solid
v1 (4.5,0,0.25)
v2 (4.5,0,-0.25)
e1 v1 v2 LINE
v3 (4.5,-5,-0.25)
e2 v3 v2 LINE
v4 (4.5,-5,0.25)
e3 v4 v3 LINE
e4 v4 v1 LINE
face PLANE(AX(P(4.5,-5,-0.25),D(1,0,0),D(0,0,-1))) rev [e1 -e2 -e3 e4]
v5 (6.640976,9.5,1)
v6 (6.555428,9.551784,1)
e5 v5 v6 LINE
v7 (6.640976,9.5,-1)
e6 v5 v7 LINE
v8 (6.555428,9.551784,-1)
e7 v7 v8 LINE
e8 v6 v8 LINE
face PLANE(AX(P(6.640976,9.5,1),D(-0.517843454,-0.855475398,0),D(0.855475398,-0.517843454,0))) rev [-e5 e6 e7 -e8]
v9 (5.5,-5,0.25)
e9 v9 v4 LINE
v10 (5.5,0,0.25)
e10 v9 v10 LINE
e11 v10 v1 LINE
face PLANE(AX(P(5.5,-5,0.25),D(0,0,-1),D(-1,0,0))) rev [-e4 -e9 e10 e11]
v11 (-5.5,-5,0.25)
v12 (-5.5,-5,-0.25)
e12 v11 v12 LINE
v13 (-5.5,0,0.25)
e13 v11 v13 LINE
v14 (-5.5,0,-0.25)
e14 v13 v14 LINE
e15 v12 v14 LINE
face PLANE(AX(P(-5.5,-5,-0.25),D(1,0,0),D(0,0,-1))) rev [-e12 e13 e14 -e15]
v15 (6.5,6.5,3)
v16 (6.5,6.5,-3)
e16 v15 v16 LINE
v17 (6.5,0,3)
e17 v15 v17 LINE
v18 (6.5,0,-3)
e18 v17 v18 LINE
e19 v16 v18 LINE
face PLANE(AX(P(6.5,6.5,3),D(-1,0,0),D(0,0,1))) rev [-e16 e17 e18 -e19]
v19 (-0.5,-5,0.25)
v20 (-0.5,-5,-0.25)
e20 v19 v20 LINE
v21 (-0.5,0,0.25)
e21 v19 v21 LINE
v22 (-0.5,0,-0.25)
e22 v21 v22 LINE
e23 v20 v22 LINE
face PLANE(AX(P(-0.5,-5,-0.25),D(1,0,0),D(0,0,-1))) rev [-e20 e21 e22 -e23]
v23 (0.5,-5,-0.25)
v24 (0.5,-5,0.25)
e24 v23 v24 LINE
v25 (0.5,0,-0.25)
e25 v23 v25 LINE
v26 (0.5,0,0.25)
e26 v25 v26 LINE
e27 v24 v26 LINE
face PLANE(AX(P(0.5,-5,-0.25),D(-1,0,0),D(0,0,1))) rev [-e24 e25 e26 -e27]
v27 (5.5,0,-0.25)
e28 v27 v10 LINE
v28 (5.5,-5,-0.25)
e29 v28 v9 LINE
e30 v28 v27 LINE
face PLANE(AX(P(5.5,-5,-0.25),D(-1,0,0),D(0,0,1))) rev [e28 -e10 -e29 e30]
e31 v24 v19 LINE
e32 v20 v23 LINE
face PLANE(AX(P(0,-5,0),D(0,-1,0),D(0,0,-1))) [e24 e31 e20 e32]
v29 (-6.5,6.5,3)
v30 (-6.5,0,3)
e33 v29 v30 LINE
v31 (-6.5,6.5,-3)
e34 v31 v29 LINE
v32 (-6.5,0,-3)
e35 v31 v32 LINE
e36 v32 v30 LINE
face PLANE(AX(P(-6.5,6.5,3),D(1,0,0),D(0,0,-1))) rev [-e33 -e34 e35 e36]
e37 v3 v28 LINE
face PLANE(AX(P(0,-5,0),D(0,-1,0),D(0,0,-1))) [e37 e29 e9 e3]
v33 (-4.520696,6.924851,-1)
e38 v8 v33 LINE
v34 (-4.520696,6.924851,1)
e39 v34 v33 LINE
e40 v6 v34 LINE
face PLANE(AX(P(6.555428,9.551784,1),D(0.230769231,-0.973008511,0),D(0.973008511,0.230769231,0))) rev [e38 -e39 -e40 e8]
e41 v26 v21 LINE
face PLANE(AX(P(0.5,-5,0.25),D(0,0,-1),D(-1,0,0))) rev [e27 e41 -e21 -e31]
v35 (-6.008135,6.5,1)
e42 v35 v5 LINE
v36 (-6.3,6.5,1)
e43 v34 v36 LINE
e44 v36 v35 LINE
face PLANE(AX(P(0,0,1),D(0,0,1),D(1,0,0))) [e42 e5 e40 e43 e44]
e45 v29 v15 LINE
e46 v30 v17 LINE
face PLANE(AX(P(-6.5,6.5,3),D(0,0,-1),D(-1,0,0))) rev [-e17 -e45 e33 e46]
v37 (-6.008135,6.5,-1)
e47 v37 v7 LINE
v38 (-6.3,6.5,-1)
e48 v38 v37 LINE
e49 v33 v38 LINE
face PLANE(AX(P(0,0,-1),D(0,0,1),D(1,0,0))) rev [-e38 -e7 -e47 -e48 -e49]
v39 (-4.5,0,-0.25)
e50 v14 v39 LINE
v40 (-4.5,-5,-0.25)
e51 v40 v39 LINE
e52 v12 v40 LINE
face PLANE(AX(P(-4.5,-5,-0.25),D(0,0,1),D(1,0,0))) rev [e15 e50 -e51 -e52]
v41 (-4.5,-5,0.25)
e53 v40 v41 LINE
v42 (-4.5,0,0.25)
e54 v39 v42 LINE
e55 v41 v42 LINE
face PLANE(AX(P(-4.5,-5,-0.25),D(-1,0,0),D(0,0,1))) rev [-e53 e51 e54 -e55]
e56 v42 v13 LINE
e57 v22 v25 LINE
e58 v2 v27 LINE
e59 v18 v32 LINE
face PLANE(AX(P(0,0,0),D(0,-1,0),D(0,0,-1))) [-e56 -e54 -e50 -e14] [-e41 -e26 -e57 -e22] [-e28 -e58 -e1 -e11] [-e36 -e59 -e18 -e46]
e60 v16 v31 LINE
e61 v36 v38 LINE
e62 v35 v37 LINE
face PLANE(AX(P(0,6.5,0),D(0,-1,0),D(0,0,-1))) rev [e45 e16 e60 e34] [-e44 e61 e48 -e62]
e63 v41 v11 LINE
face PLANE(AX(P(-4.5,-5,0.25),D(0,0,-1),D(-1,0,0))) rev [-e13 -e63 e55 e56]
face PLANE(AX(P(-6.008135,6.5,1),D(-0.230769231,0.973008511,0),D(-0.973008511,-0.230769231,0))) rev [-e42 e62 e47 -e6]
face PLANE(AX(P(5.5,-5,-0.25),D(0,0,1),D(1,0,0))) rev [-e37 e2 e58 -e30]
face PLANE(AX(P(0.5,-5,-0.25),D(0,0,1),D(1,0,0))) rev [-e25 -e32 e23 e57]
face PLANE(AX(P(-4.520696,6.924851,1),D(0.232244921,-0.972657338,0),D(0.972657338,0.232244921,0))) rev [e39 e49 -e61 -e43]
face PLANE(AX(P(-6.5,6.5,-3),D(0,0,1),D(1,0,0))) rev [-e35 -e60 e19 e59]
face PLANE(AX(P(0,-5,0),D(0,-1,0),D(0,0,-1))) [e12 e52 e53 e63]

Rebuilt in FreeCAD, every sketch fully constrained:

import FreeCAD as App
import Part
import Sketcher


def add_polygon(sketch, points):
    """Adds a closed chain of lines whose ends are joined by coincident constraints."""
    first, n = sketch.GeometryCount, len(points)
    for a, b in zip(points, points[1:] + points[:1]):
        sketch.addGeometry(Part.LineSegment(App.Vector(*a, 0), App.Vector(*b, 0)), False)
    for i in range(n):
        sketch.addConstraint(Sketcher.Constraint("Coincident", first + i, 2, first + (i + 1) % n, 1))

doc = App.newDocument("Part")
body = doc.addObject("PartDesign::Body", "Body")

# Sketch on XZ plane
sketch1 = body.newObject("Sketcher::SketchObject", "Sketch")
sketch1.AttachmentSupport = (doc.getObject("XZ_Plane"), [""])
sketch1.MapMode = "FlatFace"
add_polygon(sketch1, [(-6, -3), (-6, 3), (6, 3), (6, -3)])  # lines 0-3
sketch1.addConstraint([
    Sketcher.Constraint("Vertical", 0),
    Sketcher.Constraint("Horizontal", 1),
    Sketcher.Constraint("Vertical", 2),
    Sketcher.Constraint("Horizontal", 3),
    Sketcher.Constraint("Symmetric", 0, 2, 2, 2, -1, 1),
    Sketcher.Constraint("DistanceX", 1, 1, 1, 2, 13.0),
    Sketcher.Constraint("DistanceY", 0, 1, 0, 2, 6.0),
])
pad1 = body.newObject("PartDesign::Pad", "Pad")
pad1.Profile = sketch1
pad1.Length = 6.5
pad1.Reversed = True

# Sketch on XZ plane
sketch2 = body.newObject("Sketcher::SketchObject", "Sketch001")
sketch2.AttachmentSupport = (doc.getObject("XZ_Plane"), [""])
sketch2.MapMode = "FlatFace"
add_polygon(sketch2, [(-5.5, 0.2), (-5.5, -0.2), (-4.5, -0.2), (-4.5, 0.2)])  # lines 0-3
add_polygon(sketch2, [(-0.5, 0.2), (-0.5, -0.2), (0.5, -0.2), (0.5, 0.2)])  # lines 4-7
add_polygon(sketch2, [(4.5, 0.2), (4.5, -0.2), (5.5, -0.2), (5.5, 0.2)])  # lines 8-11
sketch2.addConstraint([
    Sketcher.Constraint("Vertical", 0),
    Sketcher.Constraint("Horizontal", 1),
    Sketcher.Constraint("Vertical", 2),
    Sketcher.Constraint("Horizontal", 3),
    Sketcher.Constraint("Vertical", 4),
    Sketcher.Constraint("Horizontal", 5),
    Sketcher.Constraint("Vertical", 6),
    Sketcher.Constraint("Horizontal", 7),
    Sketcher.Constraint("Vertical", 8),
    Sketcher.Constraint("Horizontal", 9),
    Sketcher.Constraint("Vertical", 10),
    Sketcher.Constraint("Horizontal", 11),
    Sketcher.Constraint("Symmetric", 4, 2, 6, 2, -1, 1),
    Sketcher.Constraint("Symmetric", 2, 2, 8, 2, -1, 1),
    Sketcher.Constraint("Symmetric", 0, 2, 10, 2, -1, 1),
    Sketcher.Constraint("Horizontal", 1, 2, 4, 2),
    Sketcher.Constraint("Horizontal", 3, 2, 6, 2),
    Sketcher.Constraint("Equal", 3, 5),
    Sketcher.Constraint("DistanceX", 1, 1, 1, 2, 1.0),
    Sketcher.Constraint("DistanceY", 0, 2, 0, 1, 0.5),
    Sketcher.Constraint("DistanceX", 1, 2, 4, 2, 4.0),
])
pad2 = body.newObject("PartDesign::Pad", "Pad001")
pad2.Profile = sketch2
pad2.Length = 5

# Sketch on XY plane
sketch3 = body.newObject("Sketcher::SketchObject", "Sketch002")
sketch3.AttachmentSupport = (doc.getObject("XY_Plane"), [""])
sketch3.MapMode = "FlatFace"
add_polygon(sketch3, [(-6.01, 6.5), (6.64, 9.5), (6.56, 9.55), (-4.52, 6.92), (-6.3, 6.5)])  # lines 0-4
sketch3.addConstraint([
    Sketcher.Constraint("Horizontal", 4),
    Sketcher.Constraint("Parallel", 0, 2),
    Sketcher.Constraint("Distance", 0, 13.0),
    Sketcher.Constraint("DistanceY", 3, 2, 0, 2, 3.0),
    Sketcher.Constraint("Distance", 1, 0.1),
    Sketcher.Constraint("DistanceY", -1, 1, 0, 2, 9.5),
    Sketcher.Constraint("DistanceX", 3, 2, -1, 1, 6.3),
    Sketcher.Constraint("Distance", 2, 11.383378),
    Sketcher.Constraint("DistanceX", 4, 1, 4, 2, 0.291865),
    Sketcher.Constraint("DistanceX", -1, 1, 1, 2, 6.555428),
])
pad3 = body.newObject("PartDesign::Pad", "Pad002")
pad3.Profile = sketch3
pad3.Length = 2
pad3.Midplane = True

doc.recompute()
